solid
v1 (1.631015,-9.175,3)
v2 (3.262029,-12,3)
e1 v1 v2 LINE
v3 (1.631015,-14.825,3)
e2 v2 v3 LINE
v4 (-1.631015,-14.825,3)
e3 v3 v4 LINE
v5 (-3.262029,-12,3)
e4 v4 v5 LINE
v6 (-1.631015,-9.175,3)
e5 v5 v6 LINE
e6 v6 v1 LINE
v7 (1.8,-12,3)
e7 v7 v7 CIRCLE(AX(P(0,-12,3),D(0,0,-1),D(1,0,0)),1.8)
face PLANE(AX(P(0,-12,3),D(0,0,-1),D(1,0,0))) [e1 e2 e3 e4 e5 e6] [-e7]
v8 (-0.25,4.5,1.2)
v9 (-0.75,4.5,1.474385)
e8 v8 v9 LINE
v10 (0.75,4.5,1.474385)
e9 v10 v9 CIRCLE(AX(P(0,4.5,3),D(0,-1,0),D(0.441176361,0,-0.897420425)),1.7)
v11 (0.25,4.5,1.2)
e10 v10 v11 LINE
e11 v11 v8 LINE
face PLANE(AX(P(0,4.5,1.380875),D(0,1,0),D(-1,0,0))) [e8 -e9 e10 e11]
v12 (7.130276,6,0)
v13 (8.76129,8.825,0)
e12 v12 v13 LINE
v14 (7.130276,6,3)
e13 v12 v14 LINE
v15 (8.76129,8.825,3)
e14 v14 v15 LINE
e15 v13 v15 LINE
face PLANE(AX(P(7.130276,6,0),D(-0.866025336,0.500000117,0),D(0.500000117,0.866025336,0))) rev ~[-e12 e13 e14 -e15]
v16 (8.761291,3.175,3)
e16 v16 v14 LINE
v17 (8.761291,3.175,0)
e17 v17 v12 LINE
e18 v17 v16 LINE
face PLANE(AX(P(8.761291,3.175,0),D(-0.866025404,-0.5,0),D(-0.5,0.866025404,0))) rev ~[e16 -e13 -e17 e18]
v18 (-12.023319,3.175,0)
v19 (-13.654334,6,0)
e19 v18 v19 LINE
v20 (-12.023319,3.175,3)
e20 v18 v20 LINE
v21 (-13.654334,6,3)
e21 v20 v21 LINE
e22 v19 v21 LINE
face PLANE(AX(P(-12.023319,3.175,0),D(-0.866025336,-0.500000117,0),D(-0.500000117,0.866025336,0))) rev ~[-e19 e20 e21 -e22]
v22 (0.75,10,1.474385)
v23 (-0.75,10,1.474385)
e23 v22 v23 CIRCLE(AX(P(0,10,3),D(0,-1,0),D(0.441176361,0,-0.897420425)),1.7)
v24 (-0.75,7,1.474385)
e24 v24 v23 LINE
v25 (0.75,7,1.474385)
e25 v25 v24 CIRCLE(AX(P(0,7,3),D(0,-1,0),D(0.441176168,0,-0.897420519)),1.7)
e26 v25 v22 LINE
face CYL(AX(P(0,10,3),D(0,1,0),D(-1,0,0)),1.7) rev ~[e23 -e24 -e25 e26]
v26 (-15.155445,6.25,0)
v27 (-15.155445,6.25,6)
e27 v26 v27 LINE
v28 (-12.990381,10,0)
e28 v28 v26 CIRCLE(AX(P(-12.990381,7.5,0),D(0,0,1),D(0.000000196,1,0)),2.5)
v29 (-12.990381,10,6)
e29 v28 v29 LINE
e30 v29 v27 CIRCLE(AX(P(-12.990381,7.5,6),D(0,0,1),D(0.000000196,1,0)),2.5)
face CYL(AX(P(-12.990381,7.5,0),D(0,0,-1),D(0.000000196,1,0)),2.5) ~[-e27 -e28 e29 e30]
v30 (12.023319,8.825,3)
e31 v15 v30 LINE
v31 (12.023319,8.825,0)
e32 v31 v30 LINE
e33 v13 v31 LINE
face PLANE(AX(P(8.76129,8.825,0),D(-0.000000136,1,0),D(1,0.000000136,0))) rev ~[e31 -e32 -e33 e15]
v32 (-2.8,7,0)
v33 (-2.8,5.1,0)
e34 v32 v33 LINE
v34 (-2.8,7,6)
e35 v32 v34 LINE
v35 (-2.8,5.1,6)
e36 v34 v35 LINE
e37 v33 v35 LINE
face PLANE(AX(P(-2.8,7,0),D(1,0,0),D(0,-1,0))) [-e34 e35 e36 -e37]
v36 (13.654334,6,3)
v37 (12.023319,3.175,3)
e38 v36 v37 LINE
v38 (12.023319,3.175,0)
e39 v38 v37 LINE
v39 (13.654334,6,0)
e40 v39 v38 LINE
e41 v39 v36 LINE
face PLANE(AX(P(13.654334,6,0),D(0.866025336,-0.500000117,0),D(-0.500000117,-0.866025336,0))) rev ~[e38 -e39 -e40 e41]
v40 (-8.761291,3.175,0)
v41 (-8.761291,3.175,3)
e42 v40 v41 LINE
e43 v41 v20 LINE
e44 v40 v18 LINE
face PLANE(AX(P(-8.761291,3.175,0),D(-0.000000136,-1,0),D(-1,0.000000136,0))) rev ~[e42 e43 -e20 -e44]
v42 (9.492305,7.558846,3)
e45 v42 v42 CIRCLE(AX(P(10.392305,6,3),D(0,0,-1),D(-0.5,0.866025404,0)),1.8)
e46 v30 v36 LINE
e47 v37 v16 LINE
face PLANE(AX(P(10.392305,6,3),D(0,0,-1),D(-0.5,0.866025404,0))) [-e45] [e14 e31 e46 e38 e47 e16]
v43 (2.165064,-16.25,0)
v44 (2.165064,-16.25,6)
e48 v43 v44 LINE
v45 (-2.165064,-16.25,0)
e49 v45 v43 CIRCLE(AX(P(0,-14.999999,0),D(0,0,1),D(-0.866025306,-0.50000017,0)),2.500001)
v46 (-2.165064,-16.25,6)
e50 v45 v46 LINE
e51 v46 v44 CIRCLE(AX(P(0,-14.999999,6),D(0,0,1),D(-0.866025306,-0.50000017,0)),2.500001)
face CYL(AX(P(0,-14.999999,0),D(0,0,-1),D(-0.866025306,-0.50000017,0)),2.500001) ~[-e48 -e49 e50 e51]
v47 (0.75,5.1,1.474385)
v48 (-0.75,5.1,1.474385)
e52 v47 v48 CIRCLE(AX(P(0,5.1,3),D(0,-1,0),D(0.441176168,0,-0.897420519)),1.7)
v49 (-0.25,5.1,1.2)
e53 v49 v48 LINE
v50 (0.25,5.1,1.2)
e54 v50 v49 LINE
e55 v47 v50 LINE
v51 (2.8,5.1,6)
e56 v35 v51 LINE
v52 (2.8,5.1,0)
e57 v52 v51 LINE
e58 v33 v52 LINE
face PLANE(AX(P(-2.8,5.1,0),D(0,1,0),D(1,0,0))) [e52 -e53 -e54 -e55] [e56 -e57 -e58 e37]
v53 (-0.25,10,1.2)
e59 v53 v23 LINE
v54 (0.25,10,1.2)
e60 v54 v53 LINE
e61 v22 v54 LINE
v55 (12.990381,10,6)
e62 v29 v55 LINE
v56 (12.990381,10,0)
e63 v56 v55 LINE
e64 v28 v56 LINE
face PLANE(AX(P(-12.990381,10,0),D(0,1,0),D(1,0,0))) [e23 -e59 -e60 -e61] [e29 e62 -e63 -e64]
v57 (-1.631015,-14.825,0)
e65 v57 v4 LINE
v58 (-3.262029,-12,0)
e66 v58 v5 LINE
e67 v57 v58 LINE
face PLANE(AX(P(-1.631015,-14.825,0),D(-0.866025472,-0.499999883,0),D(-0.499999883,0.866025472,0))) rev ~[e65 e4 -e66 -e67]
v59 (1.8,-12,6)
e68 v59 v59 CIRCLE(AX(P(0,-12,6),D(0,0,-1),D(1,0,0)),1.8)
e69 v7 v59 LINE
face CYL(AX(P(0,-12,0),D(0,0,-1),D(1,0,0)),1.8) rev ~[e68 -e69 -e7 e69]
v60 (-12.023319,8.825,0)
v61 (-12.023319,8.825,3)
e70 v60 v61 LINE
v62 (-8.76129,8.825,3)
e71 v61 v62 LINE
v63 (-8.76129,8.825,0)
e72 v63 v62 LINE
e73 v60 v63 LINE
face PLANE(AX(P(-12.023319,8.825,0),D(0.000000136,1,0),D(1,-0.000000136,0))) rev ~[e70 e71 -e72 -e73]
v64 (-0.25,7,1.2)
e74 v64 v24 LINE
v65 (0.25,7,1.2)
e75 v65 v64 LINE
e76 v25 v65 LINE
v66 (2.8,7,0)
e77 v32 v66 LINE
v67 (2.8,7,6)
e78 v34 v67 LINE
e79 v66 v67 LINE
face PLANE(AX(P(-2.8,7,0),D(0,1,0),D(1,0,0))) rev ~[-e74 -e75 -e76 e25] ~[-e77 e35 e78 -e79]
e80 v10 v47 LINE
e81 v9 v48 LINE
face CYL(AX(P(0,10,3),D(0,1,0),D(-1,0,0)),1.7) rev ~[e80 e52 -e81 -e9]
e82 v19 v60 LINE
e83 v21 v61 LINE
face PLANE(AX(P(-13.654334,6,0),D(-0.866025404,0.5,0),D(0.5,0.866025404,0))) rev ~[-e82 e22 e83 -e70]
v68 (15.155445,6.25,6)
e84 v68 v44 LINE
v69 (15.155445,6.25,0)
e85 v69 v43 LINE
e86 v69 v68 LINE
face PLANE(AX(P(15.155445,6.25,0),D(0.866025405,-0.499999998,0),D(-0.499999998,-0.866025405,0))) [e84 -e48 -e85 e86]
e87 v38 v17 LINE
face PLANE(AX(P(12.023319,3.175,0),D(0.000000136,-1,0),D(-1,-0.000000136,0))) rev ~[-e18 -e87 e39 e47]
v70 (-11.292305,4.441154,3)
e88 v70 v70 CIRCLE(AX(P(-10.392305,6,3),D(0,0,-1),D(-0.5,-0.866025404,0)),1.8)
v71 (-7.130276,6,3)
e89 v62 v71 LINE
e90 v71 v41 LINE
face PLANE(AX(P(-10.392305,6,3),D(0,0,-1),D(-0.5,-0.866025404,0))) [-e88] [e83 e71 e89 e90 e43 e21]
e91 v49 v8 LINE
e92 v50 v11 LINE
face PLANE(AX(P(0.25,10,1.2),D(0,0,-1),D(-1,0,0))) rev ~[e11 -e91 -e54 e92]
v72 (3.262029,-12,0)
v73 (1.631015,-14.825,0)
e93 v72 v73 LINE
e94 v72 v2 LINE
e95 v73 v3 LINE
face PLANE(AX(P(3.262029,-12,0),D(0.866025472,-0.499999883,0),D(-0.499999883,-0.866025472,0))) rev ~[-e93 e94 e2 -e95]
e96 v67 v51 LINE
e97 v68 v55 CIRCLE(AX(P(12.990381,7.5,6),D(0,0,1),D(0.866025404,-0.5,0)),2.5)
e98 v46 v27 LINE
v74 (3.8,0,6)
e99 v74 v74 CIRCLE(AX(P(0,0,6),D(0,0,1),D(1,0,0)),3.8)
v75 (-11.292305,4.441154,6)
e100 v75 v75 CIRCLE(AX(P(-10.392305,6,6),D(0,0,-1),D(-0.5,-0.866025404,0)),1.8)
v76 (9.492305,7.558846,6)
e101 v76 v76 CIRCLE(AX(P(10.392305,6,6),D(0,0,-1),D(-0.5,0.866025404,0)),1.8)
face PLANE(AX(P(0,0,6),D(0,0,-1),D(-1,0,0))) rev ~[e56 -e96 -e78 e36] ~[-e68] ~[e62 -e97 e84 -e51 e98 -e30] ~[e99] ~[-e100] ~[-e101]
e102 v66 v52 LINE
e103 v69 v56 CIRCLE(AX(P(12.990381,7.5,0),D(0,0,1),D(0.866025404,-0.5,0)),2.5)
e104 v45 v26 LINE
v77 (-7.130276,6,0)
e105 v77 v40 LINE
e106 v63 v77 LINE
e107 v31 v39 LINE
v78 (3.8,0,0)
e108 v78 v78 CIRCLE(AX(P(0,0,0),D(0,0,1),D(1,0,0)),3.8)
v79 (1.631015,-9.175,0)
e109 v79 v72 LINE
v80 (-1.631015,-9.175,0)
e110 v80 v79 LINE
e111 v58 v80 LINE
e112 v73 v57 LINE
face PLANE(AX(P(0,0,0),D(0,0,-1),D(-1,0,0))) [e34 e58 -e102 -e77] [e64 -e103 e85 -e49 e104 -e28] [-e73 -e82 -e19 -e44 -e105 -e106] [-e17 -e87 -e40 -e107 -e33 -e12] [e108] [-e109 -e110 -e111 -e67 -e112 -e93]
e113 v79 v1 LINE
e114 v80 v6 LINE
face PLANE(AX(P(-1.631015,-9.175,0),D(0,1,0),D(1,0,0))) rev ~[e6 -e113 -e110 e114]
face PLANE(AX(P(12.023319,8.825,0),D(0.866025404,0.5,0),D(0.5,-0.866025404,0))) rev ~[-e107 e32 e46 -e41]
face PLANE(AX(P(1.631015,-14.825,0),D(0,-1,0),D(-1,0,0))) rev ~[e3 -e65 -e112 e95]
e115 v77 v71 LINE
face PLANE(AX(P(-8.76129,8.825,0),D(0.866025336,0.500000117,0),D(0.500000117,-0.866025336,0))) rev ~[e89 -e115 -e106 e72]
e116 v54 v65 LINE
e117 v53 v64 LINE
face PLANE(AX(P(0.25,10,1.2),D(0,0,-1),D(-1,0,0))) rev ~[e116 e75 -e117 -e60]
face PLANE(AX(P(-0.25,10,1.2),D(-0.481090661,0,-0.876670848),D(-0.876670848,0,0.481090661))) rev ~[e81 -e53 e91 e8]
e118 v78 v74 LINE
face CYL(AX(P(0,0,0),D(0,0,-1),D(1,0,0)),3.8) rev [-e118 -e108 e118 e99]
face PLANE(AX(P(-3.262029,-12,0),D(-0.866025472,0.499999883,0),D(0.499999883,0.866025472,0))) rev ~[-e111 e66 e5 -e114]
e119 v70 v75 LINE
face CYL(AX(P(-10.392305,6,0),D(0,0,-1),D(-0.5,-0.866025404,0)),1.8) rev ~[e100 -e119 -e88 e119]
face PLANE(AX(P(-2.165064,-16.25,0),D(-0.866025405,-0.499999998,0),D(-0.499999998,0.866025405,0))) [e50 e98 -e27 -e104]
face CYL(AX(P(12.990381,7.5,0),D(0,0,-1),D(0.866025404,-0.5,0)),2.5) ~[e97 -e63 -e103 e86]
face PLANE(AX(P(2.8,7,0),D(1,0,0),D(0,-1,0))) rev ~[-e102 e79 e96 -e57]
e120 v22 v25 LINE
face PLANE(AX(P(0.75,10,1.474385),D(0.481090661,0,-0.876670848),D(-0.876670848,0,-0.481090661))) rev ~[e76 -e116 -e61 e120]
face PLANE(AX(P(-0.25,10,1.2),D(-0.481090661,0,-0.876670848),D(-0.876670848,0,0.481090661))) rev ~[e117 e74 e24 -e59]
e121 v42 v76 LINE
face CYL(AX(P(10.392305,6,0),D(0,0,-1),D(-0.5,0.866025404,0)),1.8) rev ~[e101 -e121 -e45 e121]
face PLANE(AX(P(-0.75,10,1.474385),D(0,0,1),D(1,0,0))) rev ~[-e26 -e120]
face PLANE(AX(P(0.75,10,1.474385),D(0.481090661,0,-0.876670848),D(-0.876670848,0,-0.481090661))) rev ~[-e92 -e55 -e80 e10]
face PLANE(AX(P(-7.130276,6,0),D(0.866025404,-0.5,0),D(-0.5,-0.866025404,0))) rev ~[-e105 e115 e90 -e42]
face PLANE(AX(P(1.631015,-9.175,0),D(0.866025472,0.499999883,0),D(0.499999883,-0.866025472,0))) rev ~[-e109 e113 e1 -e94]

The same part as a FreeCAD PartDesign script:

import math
import FreeCAD as App
import Part
import Sketcher
Q = App.Units.Quantity

doc = App.newDocument("Part")
body = doc.addObject("PartDesign::Body", "Body")

sketch1 = body.newObject("Sketcher::SketchObject", "Sketch")
sketch1.AttachmentSupport = (doc.getObject("XY_Plane"), [""])
sketch1.MapMode = "FlatFace"
sketch1.addGeometry([
    Part.LineSegment(App.Vector(12.990381, 10, 0), App.Vector(-12.990381, 10, 0)),
    Part.ArcOfCircle(Part.Circle(App.Vector(-12.990381, 7.5, 0), App.Vector(0, 0, 1), 2.5), math.radians(89.999989), math.radians(210)),
    Part.LineSegment(App.Vector(-15.155445, 6.25, 0), App.Vector(-2.165064, -16.25, 0)),
    Part.ArcOfCircle(Part.Circle(App.Vector(0, -14.999999, 0), App.Vector(0, 0, 1), 2.500001), math.radians(-149.999989), math.radians(-30.000011)),
    Part.LineSegment(App.Vector(2.165064, -16.25, 0), App.Vector(15.155445, 6.25, 0)),
    Part.ArcOfCircle(Part.Circle(App.Vector(12.990381, 7.5, 0), App.Vector(0, 0, 1), 2.5), math.radians(-30), math.radians(90.000011)),
    Part.Circle(App.Vector(0, 0, 0), App.Vector(0, 0, 1), 3.8),
], False)
sketch1.addConstraint([
    Sketcher.Constraint("Tangent", 0, 2, 1, 1),
    Sketcher.Constraint("Tangent", 1, 2, 2, 1),
    Sketcher.Constraint("Tangent", 2, 2, 3, 1),
    Sketcher.Constraint("Tangent", 3, 2, 4, 1),
    Sketcher.Constraint("Tangent", 4, 2, 5, 1),
    Sketcher.Constraint("Tangent", 5, 2, 0, 1),
    Sketcher.Constraint("Horizontal", 0),
    Sketcher.Constraint("Coincident", 6, 3, -1, 1),
    Sketcher.Constraint("Equal", 1, 3),
    Sketcher.Constraint("Equal", 3, 5),
    Sketcher.Constraint("Symmetric", 2, 2, 3, 2, -2),
    Sketcher.Constraint("Diameter", 6, 7.6),
    Sketcher.Constraint("Radius", 1, 2.5),
    Sketcher.Constraint("Angle", 2, Q("-60 deg")),
    Sketcher.Constraint("DistanceY", 3, 3, -1, 1, 14.999999),
    Sketcher.Constraint("DistanceY", -1, 1, 0, 2, 10.0),
])
pad1 = body.newObject("PartDesign::Pad", "Pad")
pad1.Profile = sketch1
pad1.Length = 6

sketch2 = body.newObject("Sketcher::SketchObject", "Sketch001")
sketch2.AttachmentSupport = (doc.getObject("XY_Plane"), [""])
sketch2.MapMode = "FlatFace"
sketch2.addGeometry(Part.Circle(App.Vector(0, -12, 0), App.Vector(0, 0, 1), 1.8), False)
sketch2.addConstraint([
    Sketcher.Constraint("PointOnObject", 0, 3, -2),
    Sketcher.Constraint("Diameter", 0, 3.6),
    Sketcher.Constraint("DistanceY", 0, 3, -1, 1, 12.0),
])
pocket1 = body.newObject("PartDesign::Pocket", "Pocket")
pocket1.Profile = sketch2
pocket1.Type = "ThroughAll"
pocket1.Reversed = True
doc.recompute()

polarpattern = body.newObject("PartDesign::PolarPattern", "PolarPattern")
polarpattern.Originals = [pocket1]
polarpattern.Axis = (doc.getObject("Z_Axis"), [""])
polarpattern.Angle = 360
polarpattern.Occurrences = 3
body.Tip = polarpattern

sketch3 = body.newObject("Sketcher::SketchObject", "Sketch002")
sketch3.AttachmentSupport = (doc.getObject("XY_Plane"), [""])
sketch3.MapMode = "FlatFace"
sketch3.addGeometry([
    Part.LineSegment(App.Vector(1.631015, -14.825, 0), App.Vector(-1.631015, -14.825, 0)),
    Part.LineSegment(App.Vector(-1.631015, -14.825, 0), App.Vector(-3.262029, -12, 0)),
    Part.LineSegment(App.Vector(-3.262029, -12, 0), App.Vector(-1.631015, -9.175, 0)),
    Part.LineSegment(App.Vector(-1.631015, -9.175, 0), App.Vector(1.631015, -9.175, 0)),
    Part.LineSegment(App.Vector(1.631015, -9.175, 0), App.Vector(3.262029, -12, 0)),
    Part.LineSegment(App.Vector(3.262029, -12, 0), App.Vector(1.631015, -14.825, 0)),
], False)
sketch3.addConstraint([
    Sketcher.Constraint("Coincident", 0, 2, 1, 1),
    Sketcher.Constraint("Coincident", 1, 2, 2, 1),
    Sketcher.Constraint("Coincident", 2, 2, 3, 1),
    Sketcher.Constraint("Coincident", 3, 2, 4, 1),
    Sketcher.Constraint("Coincident", 4, 2, 5, 1),
    Sketcher.Constraint("Coincident", 5, 2, 0, 1),
    Sketcher.Constraint("Horizontal", 0),
    Sketcher.Constraint("Horizontal", 3),
    Sketcher.Constraint("Symmetric", 1, 2, 4, 2, -2),
    Sketcher.Constraint("Parallel", 1, 4),
    Sketcher.Constraint("Parallel", 2, 5),
    Sketcher.Constraint("Vertical", 0, 2, 2, 2),
    Sketcher.Constraint("Vertical", 3, 2, 5, 2),
    Sketcher.Constraint("Angle", 1, Q("119.999992 deg")),
    Sketcher.Constraint("DistanceY", 1, 2, -1, 1, 12.0),
    Sketcher.Constraint("DistanceY", 0, 2, 2, 2, 5.65),
    Sketcher.Constraint("DistanceX", 0, 2, 0, 1, 3.26203),
])
pocket2 = body.newObject("PartDesign::Pocket", "Pocket001")
pocket2.Profile = sketch3
pocket2.Length = 3
pocket2.Reversed = True
doc.recompute()

polarpattern2 = body.newObject("PartDesign::PolarPattern", "PolarPattern001")
polarpattern2.Originals = [pocket2]
polarpattern2.Axis = (doc.getObject("Z_Axis"), [""])
polarpattern2.Angle = 360
polarpattern2.Occurrences = 3
body.Tip = polarpattern2

sketch4 = body.newObject("Sketcher::SketchObject", "Sketch003")
sketch4.AttachmentSupport = (doc.getObject("XZ_Plane"), [""])
sketch4.MapMode = "FlatFace"
sketch4.AttachmentOffset = App.Placement(App.Vector(0, 0, -10), App.Rotation())
sketch4.addGeometry(Part.Circle(App.Vector(0, 3, 0), App.Vector(0, 0, 1), 1.7), False)
sketch4.addConstraint([
    Sketcher.Constraint("PointOnObject", 0, 3, -2),
    Sketcher.Constraint("Diameter", 0, 3.4),
    Sketcher.Constraint("DistanceY", -1, 1, 0, 3, 3.0),
])
pocket3 = body.newObject("PartDesign::Pocket", "Pocket002")
pocket3.Profile = sketch4
pocket3.Length = 5.5
pocket3.Reversed = True

sketch5 = body.newObject("Sketcher::SketchObject", "Sketch004")
sketch5.AttachmentSupport = (doc.getObject("XY_Plane"), [""])
sketch5.MapMode = "FlatFace"
sketch5.addGeometry([
    Part.LineSegment(App.Vector(-2.8, 5.1, 0), App.Vector(-2.8, 7, 0)),
    Part.LineSegment(App.Vector(-2.8, 7, 0), App.Vector(2.8, 7, 0)),
    Part.LineSegment(App.Vector(2.8, 7, 0), App.Vector(2.8, 5.1, 0)),
    Part.LineSegment(App.Vector(2.8, 5.1, 0), App.Vector(-2.8, 5.1, 0)),
], False)
sketch5.addConstraint([
    Sketcher.Constraint("Coincident", 0, 2, 1, 1),
    Sketcher.Constraint("Coincident", 1, 2, 2, 1),
    Sketcher.Constraint("Coincident", 2, 2, 3, 1),
    Sketcher.Constraint("Coincident", 3, 2, 0, 1),
    Sketcher.Constraint("Vertical", 0),
    Sketcher.Constraint("Horizontal", 1),
    Sketcher.Constraint("Vertical", 2),
    Sketcher.Constraint("Horizontal", 3),
    Sketcher.Constraint("DistanceX", 1, 1, 1, 2, 5.6),
    Sketcher.Constraint("DistanceY", 0, 1, 0, 2, 1.9),
    Sketcher.Constraint("DistanceY", -1, 1, 0, 2, 7.0),
    Sketcher.Constraint("DistanceX", 0, 2, -1, 1, 2.8),
])
pocket4 = body.newObject("PartDesign::Pocket", "Pocket003")
pocket4.Profile = sketch5
pocket4.Type = "ThroughAll"
pocket4.Reversed = True

sketch6 = body.newObject("Sketcher::SketchObject", "Sketch005")
sketch6.AttachmentSupport = (doc.getObject("XZ_Plane"), [""])
sketch6.MapMode = "FlatFace"
sketch6.AttachmentOffset = App.Placement(App.Vector(0, 0, -10), App.Rotation())
sketch6.addGeometry([
    Part.LineSegment(App.Vector(0.75, 1.474385, 0), App.Vector(0.25, 1.2, 0)),
    Part.LineSegment(App.Vector(0.25, 1.2, 0), App.Vector(-0.25, 1.2, 0)),
    Part.LineSegment(App.Vector(-0.25, 1.2, 0), App.Vector(-0.75, 1.474385, 0)),
    Part.LineSegment(App.Vector(-0.75, 1.474385, 0), App.Vector(0.75, 1.474385, 0)),
], False)
sketch6.addConstraint([
    Sketcher.Constraint("Coincident", 0, 2, 1, 1),
    Sketcher.Constraint("Coincident", 1, 2, 2, 1),
    Sketcher.Constraint("Coincident", 2, 2, 3, 1),
    Sketcher.Constraint("Coincident", 3, 2, 0, 1),
    Sketcher.Constraint("Horizontal", 1),
    Sketcher.Constraint("Horizontal", 3),
    Sketcher.Constraint("Equal", 0, 2),
    Sketcher.Constraint("DistanceX", 1, 2, 1, 1, 0.5),
    Sketcher.Constraint("DistanceX", 3, 1, 3, 2, 1.5),
    Sketcher.Constraint("DistanceY", -1, 1, 0, 2, 1.2),
    Sketcher.Constraint("DistanceX", -1, 1, 0, 2, 0.25),
    Sketcher.Constraint("Distance", 0, 0.570339),
])
pocket5 = body.newObject("PartDesign::Pocket", "Pocket004")
pocket5.Profile = sketch6
pocket5.Length = 5.5
pocket5.Reversed = True

doc.recompute()
